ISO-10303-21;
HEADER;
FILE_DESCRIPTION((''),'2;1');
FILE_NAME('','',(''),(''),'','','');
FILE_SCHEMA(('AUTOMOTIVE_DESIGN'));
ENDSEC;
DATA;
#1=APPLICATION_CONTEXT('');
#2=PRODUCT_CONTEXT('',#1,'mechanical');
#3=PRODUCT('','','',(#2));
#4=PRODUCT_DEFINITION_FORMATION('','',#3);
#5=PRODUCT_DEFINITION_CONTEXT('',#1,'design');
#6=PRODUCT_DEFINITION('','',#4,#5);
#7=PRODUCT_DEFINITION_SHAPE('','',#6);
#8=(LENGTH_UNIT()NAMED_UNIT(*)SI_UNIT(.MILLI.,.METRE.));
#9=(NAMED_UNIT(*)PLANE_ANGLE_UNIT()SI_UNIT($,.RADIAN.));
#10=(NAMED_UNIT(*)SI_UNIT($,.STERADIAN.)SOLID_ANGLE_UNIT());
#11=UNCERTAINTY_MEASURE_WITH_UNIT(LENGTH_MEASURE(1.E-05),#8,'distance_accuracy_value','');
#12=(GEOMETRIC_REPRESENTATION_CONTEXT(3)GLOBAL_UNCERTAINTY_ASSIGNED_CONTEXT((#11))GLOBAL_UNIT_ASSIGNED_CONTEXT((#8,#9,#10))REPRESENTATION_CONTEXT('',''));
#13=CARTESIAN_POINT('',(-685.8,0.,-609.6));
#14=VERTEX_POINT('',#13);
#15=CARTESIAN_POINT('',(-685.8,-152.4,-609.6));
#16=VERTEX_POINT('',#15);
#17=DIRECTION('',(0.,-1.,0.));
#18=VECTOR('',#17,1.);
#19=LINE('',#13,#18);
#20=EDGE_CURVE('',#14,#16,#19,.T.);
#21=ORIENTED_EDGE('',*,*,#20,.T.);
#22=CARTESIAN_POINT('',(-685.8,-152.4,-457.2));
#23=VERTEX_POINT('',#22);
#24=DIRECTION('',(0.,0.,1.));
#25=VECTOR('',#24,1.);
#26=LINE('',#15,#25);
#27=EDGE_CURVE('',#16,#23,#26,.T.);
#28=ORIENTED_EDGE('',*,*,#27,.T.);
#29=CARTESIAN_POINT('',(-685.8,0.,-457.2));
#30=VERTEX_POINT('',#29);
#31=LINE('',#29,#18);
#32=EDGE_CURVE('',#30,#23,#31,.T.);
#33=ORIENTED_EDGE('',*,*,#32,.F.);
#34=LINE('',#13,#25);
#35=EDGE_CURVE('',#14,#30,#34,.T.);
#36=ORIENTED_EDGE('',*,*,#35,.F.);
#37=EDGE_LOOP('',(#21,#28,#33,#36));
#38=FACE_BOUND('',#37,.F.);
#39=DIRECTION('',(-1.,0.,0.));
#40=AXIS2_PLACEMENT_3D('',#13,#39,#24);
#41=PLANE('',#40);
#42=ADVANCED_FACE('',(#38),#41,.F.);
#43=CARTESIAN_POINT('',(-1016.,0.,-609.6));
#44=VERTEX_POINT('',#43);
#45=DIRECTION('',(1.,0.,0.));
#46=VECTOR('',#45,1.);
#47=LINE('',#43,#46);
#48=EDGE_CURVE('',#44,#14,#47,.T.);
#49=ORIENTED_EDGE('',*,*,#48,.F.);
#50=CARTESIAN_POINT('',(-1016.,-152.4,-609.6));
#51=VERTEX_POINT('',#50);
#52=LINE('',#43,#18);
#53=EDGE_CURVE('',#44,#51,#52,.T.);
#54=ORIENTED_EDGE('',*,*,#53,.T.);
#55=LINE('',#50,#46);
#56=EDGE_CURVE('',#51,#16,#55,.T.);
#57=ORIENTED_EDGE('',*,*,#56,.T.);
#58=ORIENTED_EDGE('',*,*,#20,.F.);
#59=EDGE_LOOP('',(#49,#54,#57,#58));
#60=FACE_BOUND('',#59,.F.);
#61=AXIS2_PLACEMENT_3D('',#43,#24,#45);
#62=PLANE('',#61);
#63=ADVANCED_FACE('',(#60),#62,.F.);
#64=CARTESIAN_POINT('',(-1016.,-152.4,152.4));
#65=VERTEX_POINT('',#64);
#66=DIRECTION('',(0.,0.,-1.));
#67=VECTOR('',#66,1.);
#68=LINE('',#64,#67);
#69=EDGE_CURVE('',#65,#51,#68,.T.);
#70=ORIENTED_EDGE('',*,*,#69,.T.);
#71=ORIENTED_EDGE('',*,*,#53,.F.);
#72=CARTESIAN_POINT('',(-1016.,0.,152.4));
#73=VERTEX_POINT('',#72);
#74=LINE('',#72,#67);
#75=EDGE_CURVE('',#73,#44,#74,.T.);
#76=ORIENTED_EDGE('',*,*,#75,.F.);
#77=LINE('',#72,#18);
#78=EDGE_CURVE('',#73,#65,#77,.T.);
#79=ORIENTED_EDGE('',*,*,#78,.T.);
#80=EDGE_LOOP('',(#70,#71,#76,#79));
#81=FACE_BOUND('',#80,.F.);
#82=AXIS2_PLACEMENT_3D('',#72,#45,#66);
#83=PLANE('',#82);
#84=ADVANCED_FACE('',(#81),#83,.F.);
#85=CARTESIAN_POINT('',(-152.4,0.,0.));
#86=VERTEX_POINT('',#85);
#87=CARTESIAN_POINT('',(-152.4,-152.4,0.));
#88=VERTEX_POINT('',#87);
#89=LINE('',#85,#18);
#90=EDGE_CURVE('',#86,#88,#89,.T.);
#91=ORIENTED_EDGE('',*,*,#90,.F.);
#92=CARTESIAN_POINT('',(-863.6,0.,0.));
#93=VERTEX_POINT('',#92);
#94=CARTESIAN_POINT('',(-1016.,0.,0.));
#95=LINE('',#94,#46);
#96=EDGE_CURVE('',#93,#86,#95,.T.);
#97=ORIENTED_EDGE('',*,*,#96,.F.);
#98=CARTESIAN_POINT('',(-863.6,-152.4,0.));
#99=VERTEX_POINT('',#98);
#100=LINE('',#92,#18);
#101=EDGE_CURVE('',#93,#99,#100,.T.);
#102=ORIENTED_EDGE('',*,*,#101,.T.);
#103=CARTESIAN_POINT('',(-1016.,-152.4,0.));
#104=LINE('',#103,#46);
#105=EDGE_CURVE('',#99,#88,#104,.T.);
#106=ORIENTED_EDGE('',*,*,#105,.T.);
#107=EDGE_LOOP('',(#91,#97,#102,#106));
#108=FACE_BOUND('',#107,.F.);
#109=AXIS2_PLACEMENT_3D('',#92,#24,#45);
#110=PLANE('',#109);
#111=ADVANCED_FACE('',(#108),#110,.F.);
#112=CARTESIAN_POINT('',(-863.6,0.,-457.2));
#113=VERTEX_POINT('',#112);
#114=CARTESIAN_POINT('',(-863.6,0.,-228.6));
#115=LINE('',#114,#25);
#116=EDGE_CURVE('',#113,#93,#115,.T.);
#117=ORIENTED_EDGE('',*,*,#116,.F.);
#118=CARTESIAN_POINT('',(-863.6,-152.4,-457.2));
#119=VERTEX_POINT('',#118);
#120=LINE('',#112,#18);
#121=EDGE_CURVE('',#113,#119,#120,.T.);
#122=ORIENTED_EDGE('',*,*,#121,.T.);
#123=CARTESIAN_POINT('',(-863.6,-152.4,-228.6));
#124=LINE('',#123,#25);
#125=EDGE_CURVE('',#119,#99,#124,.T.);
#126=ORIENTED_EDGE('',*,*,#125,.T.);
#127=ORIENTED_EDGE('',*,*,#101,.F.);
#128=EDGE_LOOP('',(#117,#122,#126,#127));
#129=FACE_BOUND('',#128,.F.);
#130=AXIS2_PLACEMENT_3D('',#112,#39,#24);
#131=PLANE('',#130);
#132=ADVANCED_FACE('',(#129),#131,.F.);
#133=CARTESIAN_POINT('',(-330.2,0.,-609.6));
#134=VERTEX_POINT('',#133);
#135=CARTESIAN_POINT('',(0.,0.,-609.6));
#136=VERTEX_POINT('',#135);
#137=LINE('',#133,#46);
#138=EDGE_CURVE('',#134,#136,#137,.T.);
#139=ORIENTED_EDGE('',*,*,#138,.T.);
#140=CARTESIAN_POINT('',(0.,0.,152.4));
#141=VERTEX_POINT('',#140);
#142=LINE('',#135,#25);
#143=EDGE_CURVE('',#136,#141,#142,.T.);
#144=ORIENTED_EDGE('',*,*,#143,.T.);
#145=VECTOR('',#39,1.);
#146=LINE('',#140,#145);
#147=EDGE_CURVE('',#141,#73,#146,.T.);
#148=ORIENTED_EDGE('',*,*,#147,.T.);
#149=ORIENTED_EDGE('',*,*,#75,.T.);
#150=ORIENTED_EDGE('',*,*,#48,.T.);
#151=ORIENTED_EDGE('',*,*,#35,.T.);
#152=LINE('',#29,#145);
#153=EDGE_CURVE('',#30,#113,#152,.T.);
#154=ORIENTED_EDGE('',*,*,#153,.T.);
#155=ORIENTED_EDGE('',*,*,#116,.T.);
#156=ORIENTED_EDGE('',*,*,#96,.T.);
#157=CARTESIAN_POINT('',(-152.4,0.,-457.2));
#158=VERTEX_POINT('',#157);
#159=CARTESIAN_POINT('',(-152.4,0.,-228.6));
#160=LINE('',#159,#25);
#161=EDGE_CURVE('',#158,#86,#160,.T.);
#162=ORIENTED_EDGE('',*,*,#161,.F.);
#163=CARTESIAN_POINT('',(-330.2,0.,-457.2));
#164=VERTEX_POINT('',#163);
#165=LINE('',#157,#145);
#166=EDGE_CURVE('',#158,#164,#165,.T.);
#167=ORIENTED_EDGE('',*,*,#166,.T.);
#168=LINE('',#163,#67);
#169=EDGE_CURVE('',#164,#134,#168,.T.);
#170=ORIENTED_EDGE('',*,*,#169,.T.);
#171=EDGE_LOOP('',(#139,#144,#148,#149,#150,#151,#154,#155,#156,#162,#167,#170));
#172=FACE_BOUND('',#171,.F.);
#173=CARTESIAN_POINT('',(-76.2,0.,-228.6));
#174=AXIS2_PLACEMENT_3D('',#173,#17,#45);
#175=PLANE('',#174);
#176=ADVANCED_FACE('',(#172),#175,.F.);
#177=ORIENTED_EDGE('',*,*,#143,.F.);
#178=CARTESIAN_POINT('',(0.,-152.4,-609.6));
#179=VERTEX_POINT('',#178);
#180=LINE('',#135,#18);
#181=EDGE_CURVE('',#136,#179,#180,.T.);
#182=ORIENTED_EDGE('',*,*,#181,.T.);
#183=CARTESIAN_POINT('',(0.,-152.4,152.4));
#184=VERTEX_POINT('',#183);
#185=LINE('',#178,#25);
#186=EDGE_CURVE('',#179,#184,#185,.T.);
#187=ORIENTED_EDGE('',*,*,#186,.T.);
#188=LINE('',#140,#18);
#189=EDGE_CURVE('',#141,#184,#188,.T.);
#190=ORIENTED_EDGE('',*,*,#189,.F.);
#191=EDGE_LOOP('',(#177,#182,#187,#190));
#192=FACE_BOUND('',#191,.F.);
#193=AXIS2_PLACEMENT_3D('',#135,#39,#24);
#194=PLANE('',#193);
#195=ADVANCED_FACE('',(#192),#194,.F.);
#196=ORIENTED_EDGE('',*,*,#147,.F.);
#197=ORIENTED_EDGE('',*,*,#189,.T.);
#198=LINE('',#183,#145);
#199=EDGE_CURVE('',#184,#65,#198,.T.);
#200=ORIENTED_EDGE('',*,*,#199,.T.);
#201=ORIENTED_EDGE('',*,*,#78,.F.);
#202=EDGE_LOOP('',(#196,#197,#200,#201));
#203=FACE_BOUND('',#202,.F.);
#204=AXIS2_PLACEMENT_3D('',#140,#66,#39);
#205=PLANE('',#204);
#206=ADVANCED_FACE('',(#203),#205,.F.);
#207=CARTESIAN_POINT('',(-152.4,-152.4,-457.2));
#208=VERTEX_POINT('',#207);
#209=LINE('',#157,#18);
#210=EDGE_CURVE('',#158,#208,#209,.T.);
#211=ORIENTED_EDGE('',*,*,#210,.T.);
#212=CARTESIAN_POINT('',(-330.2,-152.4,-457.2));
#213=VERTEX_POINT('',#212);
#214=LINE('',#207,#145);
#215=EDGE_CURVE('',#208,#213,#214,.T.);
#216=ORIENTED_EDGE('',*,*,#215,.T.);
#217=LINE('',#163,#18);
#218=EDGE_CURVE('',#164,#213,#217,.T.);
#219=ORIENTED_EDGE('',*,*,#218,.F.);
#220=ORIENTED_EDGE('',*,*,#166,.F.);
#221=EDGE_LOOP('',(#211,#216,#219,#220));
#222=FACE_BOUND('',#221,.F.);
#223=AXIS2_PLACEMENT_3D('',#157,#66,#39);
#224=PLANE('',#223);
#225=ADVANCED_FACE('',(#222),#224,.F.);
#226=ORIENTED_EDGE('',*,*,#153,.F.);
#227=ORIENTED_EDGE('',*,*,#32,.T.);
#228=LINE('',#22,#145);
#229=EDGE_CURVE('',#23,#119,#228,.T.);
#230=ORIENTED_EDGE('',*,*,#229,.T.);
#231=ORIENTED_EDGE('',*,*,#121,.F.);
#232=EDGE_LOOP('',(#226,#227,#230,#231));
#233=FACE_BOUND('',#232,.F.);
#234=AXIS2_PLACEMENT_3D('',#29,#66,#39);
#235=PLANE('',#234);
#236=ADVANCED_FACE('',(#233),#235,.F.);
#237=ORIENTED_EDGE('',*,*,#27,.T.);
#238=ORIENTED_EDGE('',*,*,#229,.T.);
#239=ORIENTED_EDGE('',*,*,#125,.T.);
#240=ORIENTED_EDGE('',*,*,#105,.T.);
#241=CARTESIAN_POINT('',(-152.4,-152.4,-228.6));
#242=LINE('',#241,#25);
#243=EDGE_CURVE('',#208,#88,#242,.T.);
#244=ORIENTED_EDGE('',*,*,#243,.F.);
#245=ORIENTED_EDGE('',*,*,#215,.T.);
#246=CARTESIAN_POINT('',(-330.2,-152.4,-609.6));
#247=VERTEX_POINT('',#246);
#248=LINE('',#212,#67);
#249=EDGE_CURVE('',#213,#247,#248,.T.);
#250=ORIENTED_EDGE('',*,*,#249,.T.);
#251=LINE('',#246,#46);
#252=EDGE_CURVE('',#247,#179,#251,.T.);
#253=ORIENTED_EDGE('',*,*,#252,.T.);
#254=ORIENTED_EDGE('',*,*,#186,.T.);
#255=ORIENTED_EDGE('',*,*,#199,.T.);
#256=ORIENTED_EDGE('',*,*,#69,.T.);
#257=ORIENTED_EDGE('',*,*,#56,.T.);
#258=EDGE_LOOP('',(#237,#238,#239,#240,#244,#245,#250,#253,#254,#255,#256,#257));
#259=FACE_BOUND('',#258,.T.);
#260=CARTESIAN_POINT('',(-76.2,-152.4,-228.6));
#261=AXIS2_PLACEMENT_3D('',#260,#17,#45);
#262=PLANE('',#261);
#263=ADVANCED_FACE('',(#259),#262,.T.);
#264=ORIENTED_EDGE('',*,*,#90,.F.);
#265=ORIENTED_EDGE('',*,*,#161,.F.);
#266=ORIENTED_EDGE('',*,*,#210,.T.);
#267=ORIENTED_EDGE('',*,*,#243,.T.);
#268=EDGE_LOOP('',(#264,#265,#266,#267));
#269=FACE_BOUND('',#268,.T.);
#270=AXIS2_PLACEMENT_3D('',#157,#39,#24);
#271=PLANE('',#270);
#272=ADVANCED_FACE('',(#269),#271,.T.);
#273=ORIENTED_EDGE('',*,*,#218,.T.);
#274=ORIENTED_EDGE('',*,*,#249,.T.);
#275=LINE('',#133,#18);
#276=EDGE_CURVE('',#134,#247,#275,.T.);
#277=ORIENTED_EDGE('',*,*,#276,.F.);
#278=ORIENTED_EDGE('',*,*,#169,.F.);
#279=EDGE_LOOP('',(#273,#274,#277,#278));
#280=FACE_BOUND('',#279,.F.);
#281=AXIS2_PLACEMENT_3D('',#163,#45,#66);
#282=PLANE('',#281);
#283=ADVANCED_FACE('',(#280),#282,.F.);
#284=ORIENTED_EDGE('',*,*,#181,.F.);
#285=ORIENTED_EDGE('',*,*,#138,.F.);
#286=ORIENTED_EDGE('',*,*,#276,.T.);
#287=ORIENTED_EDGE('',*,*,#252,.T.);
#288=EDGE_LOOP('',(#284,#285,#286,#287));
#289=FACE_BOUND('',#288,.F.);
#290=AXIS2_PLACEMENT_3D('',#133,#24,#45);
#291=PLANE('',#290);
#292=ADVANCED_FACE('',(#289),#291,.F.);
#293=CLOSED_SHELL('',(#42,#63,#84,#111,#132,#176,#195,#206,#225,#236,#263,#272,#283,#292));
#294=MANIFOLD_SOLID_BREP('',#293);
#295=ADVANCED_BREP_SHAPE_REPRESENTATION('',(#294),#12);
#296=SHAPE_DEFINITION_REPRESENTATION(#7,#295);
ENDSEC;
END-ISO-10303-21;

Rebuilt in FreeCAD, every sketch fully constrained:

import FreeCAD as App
import Part
import Sketcher
from FreeCAD import Vector
Q = App.Units.Quantity

doc = App.newDocument("Part")
params = doc.addObject("Spreadsheet::Sheet", "Params")
for row, (alias, value) in enumerate([
    ("sketch1_width", "7 in"),
    ("sketch1_width2", "13 in"),
    ("sketch1_width3", "40 in"),
    ("sketch1_height", "18 in"),
    ("sketch1_height2", "6 in"),
    ("pad1_length", "6 in"),
], start=1):
    params.set(f"A{row}", alias)
    params.set(f"B{row}", "=" + value)
    params.setAlias(f"B{row}", alias)

body = doc.addObject("PartDesign::Body", "Body")

# Sketch on XZ plane
sketch1 = body.newObject("Sketcher::SketchObject", "Sketch")
sketch1.AttachmentSupport = (doc.getObject("XZ_Plane"), [""])
sketch1.MapMode = "FlatFace"
sketch1.addGeometry([
    Part.LineSegment(Vector(-152.4, 0, 0), Vector(-152.4, -457.2, 0)),  # 0
    Part.LineSegment(Vector(-152.4, -457.2, 0), Vector(-330.2, -457.2, 0)),  # 1
    Part.LineSegment(Vector(-330.2, -457.2, 0), Vector(-330.2, -609.6, 0)),  # 2
    Part.LineSegment(Vector(-330.2, -609.6, 0), Vector(0, -609.6, 0)),  # 3
    Part.LineSegment(Vector(0, -609.6, 0), Vector(0, 152.4, 0)),  # 4
    Part.LineSegment(Vector(0, 152.4, 0), Vector(-1016, 152.4, 0)),  # 5
    Part.LineSegment(Vector(-1016, 152.4, 0), Vector(-1016, -609.6, 0)),  # 6
    Part.LineSegment(Vector(-1016, -609.6, 0), Vector(-685.8, -609.6, 0)),  # 7
    Part.LineSegment(Vector(-685.8, -609.6, 0), Vector(-685.8, -457.2, 0)),  # 8
    Part.LineSegment(Vector(-685.8, -457.2, 0), Vector(-863.6, -457.2, 0)),  # 9
    Part.LineSegment(Vector(-863.6, -457.2, 0), Vector(-863.6, 0, 0)),  # 10
    Part.LineSegment(Vector(-863.6, 0, 0), Vector(-152.4, 0, 0)),  # 11
], False)
sketch1.addConstraint([
    Sketcher.Constraint("Coincident", 0, 2, 1, 1),
    Sketcher.Constraint("Coincident", 1, 2, 2, 1),
    Sketcher.Constraint("Coincident", 2, 2, 3, 1),
    Sketcher.Constraint("Coincident", 3, 2, 4, 1),
    Sketcher.Constraint("Coincident", 4, 2, 5, 1),
    Sketcher.Constraint("Coincident", 5, 2, 6, 1),
    Sketcher.Constraint("Coincident", 6, 2, 7, 1),
    Sketcher.Constraint("Coincident", 7, 2, 8, 1),
    Sketcher.Constraint("Coincident", 8, 2, 9, 1),
    Sketcher.Constraint("Coincident", 9, 2, 10, 1),
    Sketcher.Constraint("Coincident", 10, 2, 11, 1),
    Sketcher.Constraint("Coincident", 11, 2, 0, 1),
    Sketcher.Constraint("Vertical", 0),
    Sketcher.Constraint("Horizontal", 1),
    Sketcher.Constraint("Vertical", 2),
    Sketcher.Constraint("Horizontal", 3),
    Sketcher.Constraint("Vertical", 4),
    Sketcher.Constraint("Horizontal", 5),
    Sketcher.Constraint("Vertical", 6),
    Sketcher.Constraint("Horizontal", 7),
    Sketcher.Constraint("Vertical", 8),
    Sketcher.Constraint("Horizontal", 9),
    Sketcher.Constraint("Vertical", 10),
    Sketcher.Constraint("Horizontal", 11),
    Sketcher.Constraint("PointOnObject", 3, 2, -2),
    Sketcher.Constraint("PointOnObject", 10, 2, -1),
    Sketcher.Constraint("Horizontal", 3, 2, 6, 2),
    Sketcher.Constraint("Horizontal", 1, 2, 8, 2),
    Sketcher.Constraint("Equal", 3, 7),
    Sketcher.Constraint("Equal", 1, 9),
    Sketcher.Constraint("DistanceX", 1, 2, 1, 1, Q("7 in")),
    Sketcher.Constraint("DistanceX", 3, 1, 3, 2, Q("13 in")),
    Sketcher.Constraint("DistanceX", 5, 2, 5, 1, Q("40 in")),
    Sketcher.Constraint("DistanceY", 0, 2, 0, 1, Q("18 in")),
    Sketcher.Constraint("DistanceY", 2, 2, 2, 1, Q("6 in")),
    Sketcher.Constraint("DistanceY", 4, 1, 4, 2, Q("30 in")),
])
sketch1.setExpression("Constraints[30]", "Params.sketch1_width")
sketch1.setExpression("Constraints[31]", "Params.sketch1_width2")
sketch1.setExpression("Constraints[32]", "Params.sketch1_width3")
sketch1.setExpression("Constraints[33]", "Params.sketch1_height")
sketch1.setExpression("Constraints[34]", "Params.sketch1_height2")
pad1 = body.newObject("PartDesign::Pad", "Pad")
pad1.Profile = sketch1
pad1.setExpression("Length", "Params.pad1_length")

doc.recompute()
